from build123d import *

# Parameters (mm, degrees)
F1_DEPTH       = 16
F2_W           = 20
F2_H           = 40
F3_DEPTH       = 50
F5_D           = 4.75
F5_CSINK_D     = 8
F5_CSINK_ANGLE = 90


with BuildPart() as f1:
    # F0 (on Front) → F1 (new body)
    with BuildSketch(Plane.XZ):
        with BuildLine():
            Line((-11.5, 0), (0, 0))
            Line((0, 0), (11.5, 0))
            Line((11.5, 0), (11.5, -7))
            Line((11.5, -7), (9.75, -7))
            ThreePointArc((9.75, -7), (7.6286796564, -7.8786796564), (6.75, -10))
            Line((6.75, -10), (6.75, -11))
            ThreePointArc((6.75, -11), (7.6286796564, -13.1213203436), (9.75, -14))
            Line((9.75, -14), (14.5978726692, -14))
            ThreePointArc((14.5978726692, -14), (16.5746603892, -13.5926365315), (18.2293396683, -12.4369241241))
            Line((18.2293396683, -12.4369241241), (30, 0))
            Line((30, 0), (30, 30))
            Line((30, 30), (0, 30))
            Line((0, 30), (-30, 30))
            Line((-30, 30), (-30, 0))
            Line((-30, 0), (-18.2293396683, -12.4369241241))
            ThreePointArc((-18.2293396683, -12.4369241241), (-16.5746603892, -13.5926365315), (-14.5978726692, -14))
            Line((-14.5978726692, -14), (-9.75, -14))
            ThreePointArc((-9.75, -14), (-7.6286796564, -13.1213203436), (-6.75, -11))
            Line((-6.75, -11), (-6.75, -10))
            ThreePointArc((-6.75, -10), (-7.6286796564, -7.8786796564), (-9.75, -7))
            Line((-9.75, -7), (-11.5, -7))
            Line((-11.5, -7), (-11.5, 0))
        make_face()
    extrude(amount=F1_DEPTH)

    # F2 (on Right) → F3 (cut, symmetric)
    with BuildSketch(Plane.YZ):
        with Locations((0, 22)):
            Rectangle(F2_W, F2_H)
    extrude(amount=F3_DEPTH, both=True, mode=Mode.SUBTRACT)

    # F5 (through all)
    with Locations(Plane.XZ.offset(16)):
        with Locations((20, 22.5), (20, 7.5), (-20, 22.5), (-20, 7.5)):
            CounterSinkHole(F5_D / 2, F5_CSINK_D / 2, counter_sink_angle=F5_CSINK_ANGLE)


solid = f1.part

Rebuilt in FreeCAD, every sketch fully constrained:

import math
import FreeCAD as App
import Part
import Sketcher

V = App.Vector
Q = App.Units.Quantity


def add_polygon(sketch, points):
    """Adds a closed chain of lines whose ends are joined by coincident constraints."""
    first, n = sketch.GeometryCount, len(points)
    for a, b in zip(points, points[1:] + points[:1]):
        sketch.addGeometry(Part.LineSegment(App.Vector(*a, 0), App.Vector(*b, 0)), False)
    for i in range(n):
        sketch.addConstraint(Sketcher.Constraint("Coincident", first + i, 2, first + (i + 1) % n, 1))

doc = App.newDocument("Part")
body = doc.addObject("PartDesign::Body", "Body")

sketch1 = body.newObject("Sketcher::SketchObject", "Sketch")
sketch1.AttachmentSupport = (doc.getObject("XZ_Plane"), [""])
sketch1.MapMode = "FlatFace"
sketch1.addGeometry([
    Part.LineSegment(V(-11.5, 0, 0), V(11.5, 0, 0)),
    Part.LineSegment(V(11.5, 0, 0), V(11.5, -7, 0)),
    Part.LineSegment(V(11.5, -7, 0), V(9.75, -7, 0)),
    Part.ArcOfCircle(Part.Circle(V(9.75, -10, 0), V(0, 0, 1), 3), math.radians(90), math.radians(180)),
    Part.LineSegment(V(6.75, -10, 0), V(6.75, -11, 0)),
    Part.ArcOfCircle(Part.Circle(V(9.75, -11, 0), V(0, 0, 1), 3), math.radians(180), math.radians(270)),
    Part.LineSegment(V(9.75, -14, 0), V(14.597873, -14, 0)),
    Part.ArcOfCircle(Part.Circle(V(14.597873, -9, 0), V(0, 0, 1), 5), math.radians(-90), math.radians(-43.42345)),
    Part.LineSegment(V(18.22934, -12.436924, 0), V(30, 0, 0)),
    Part.LineSegment(V(30, 0, 0), V(30, 30, 0)),
    Part.LineSegment(V(30, 30, 0), V(-30, 30, 0)),
    Part.LineSegment(V(-30, 30, 0), V(-30, 0, 0)),
    Part.LineSegment(V(-30, 0, 0), V(-18.22934, -12.436924, 0)),
    Part.ArcOfCircle(Part.Circle(V(-14.597873, -9, 0), V(0, 0, 1), 5), math.radians(-136.57655), math.radians(-90)),
    Part.LineSegment(V(-14.597873, -14, 0), V(-9.75, -14, 0)),
    Part.ArcOfCircle(Part.Circle(V(-9.75, -11, 0), V(0, 0, 1), 3), math.radians(-90), math.radians(0)),
    Part.LineSegment(V(-6.75, -11, 0), V(-6.75, -10, 0)),
    Part.ArcOfCircle(Part.Circle(V(-9.75, -10, 0), V(0, 0, 1), 3), math.radians(0), math.radians(90)),
    Part.LineSegment(V(-9.75, -7, 0), V(-11.5, -7, 0)),
    Part.LineSegment(V(-11.5, -7, 0), V(-11.5, 0, 0)),
], False)
sketch1.addConstraint([
    Sketcher.Constraint("Coincident", 0, 2, 1, 1),
    Sketcher.Constraint("Coincident", 1, 2, 2, 1),
    Sketcher.Constraint("Tangent", 2, 2, 3, 1),
    Sketcher.Constraint("Tangent", 3, 2, 4, 1),
    Sketcher.Constraint("Tangent", 4, 2, 5, 1),
    Sketcher.Constraint("Tangent", 5, 2, 6, 1),
    Sketcher.Constraint("Tangent", 6, 2, 7, 1),
    Sketcher.Constraint("Tangent", 7, 2, 8, 1),
    Sketcher.Constraint("Coincident", 8, 2, 9, 1),
    Sketcher.Constraint("Coincident", 9, 2, 10, 1),
    Sketcher.Constraint("Coincident", 10, 2, 11, 1),
    Sketcher.Constraint("Coincident", 11, 2, 12, 1),
    Sketcher.Constraint("Tangent", 12, 2, 13, 1),
    Sketcher.Constraint("Tangent", 13, 2, 14, 1),
    Sketcher.Constraint("Tangent", 14, 2, 15, 1),
    Sketcher.Constraint("Tangent", 15, 2, 16, 1),
    Sketcher.Constraint("Tangent", 16, 2, 17, 1),
    Sketcher.Constraint("Tangent", 17, 2, 18, 1),
    Sketcher.Constraint("Coincident", 18, 2, 19, 1),
    Sketcher.Constraint("Coincident", 19, 2, 0, 1),
    Sketcher.Constraint("Horizontal", 0),
    Sketcher.Constraint("Vertical", 1),
    Sketcher.Constraint("Horizontal", 2),
    Sketcher.Constraint("Vertical", 4),
    Sketcher.Constraint("Horizontal", 6),
    Sketcher.Constraint("Vertical", 9),
    Sketcher.Constraint("Horizontal", 10),
    Sketcher.Constraint("Vertical", 11),
    Sketcher.Constraint("Horizontal", 14),
    Sketcher.Constraint("Vertical", 16),
    Sketcher.Constraint("Horizontal", 18),
    Sketcher.Constraint("Vertical", 19),
    Sketcher.Constraint("Equal", 3, 5),
    Sketcher.Constraint("Equal", 7, 13),
    Sketcher.Constraint("Equal", 5, 15),
    Sketcher.Constraint("Equal", 15, 17),
    Sketcher.Constraint("Symmetric", 8, 2, 11, 2, -1, 1),
    Sketcher.Constraint("Symmetric", 0, 2, 19, 2, -1, 1),
    Sketcher.Constraint("Symmetric", 7, 3, 13, 3, -2),
    Sketcher.Constraint("Symmetric", 3, 3, 17, 3, -2),
    Sketcher.Constraint("PointOnObject", 8, 2, -1),
    Sketcher.Constraint("Radius", 3, Q("3 mm")),
    Sketcher.Constraint("Radius", 7, Q("5 mm")),
    Sketcher.Constraint("DistanceX", 0, 1, 0, 2, Q("23 mm")),
    Sketcher.Constraint("DistanceX", 10, 2, 10, 1, Q("60 mm")),
    Sketcher.Constraint("DistanceY", 1, 2, 1, 1, Q("7 mm")),
    Sketcher.Constraint("DistanceY", 4, 2, 4, 1, Q("1 mm")),
    Sketcher.Constraint("DistanceY", 9, 1, 9, 2, Q("30 mm")),
    Sketcher.Constraint("DistanceX", 2, 2, 2, 1, Q("1.75 mm")),
    Sketcher.Constraint("Distance", 8, Q("17.123829 mm")),
])
pad1 = body.newObject("PartDesign::Pad", "Pad")
pad1.Profile = sketch1
pad1.Length = 16

sketch2 = body.newObject("Sketcher::SketchObject", "Sketch001")
sketch2.AttachmentSupport = (doc.getObject("YZ_Plane"), [""])
sketch2.MapMode = "FlatFace"
add_polygon(sketch2, [(-10, 42), (-10, 2), (10, 2), (10, 42)])
sketch2.addConstraint([
    Sketcher.Constraint("Vertical", 0),
    Sketcher.Constraint("Horizontal", 1),
    Sketcher.Constraint("Vertical", 2),
    Sketcher.Constraint("Horizontal", 3),
    Sketcher.Constraint("DistanceX", 1, 1, 1, 2, Q("20 mm")),
    Sketcher.Constraint("DistanceY", 0, 2, 0, 1, Q("40 mm")),
    Sketcher.Constraint("DistanceX", 0, 2, -1, 1, Q("10 mm")),
    Sketcher.Constraint("DistanceY", -1, 1, 0, 2, Q("2 mm")),
])
pocket1 = body.newObject("PartDesign::Pocket", "Pocket")
pocket1.Profile = sketch2
pocket1.Length = 100
pocket1.Midplane = True

sketch3 = body.newObject("Sketcher::SketchObject", "Sketch002")
sketch3.AttachmentSupport = (doc.getObject("XZ_Plane"), [""])
sketch3.MapMode = "FlatFace"
sketch3.AttachmentOffset = App.Placement(V(0, 0, 16), App.Rotation())
sketch3.addGeometry([
    Part.Circle(V(20, 22.5, 0), V(0, 0, 1), 2.375),
    Part.Circle(V(20, 7.5, 0), V(0, 0, 1), 2.375),
    Part.Circle(V(-20, 22.5, 0), V(0, 0, 1), 2.375),
    Part.Circle(V(-20, 7.5, 0), V(0, 0, 1), 2.375),
], False)
sketch3.addConstraint([
    Sketcher.Constraint("Equal", 0, 1),
    Sketcher.Constraint("Equal", 1, 2),
    Sketcher.Constraint("Equal", 2, 3),
    Sketcher.Constraint("Symmetric", 0, 3, 2, 3, -2),
    Sketcher.Constraint("Symmetric", 1, 3, 3, 3, -2),
    Sketcher.Constraint("Vertical", 0, 3, 1, 3),
    Sketcher.Constraint("Diameter", 0, Q("4.75 mm")),
    Sketcher.Constraint("DistanceX", -1, 1, 0, 3, Q("20 mm")),
    Sketcher.Constraint("DistanceY", 1, 3, 0, 3, Q("15 mm")),
    Sketcher.Constraint("DistanceY", -1, 1, 0, 3, Q("22.5 mm")),
])
doc.recompute()
hole = body.newObject("PartDesign::Hole", "Hole")
hole.Profile = sketch3
hole.ThreadType = "None"
hole.Diameter = 4.75
hole.DepthType = "ThroughAll"
hole.HoleCutType = "Countersink"
hole.HoleCutDiameter = 8
hole.HoleCutCountersinkAngle = 90

doc.recompute()
